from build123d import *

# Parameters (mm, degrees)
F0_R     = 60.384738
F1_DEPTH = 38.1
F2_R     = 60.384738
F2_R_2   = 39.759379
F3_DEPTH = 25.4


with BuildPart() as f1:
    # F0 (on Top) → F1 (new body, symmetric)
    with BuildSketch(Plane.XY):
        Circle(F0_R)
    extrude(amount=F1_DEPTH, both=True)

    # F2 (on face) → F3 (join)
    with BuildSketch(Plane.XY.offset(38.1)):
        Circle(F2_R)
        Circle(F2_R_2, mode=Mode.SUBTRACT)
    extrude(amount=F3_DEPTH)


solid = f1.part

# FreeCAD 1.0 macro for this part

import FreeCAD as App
import Part
import Sketcher

V = App.Vector
Q = App.Units.Quantity

doc = App.newDocument("Part")
body = doc.addObject("PartDesign::Body", "Body")

sketch1 = doc.addObject("Sketcher::SketchObject", "Sketch")
body.addObject(sketch1)
sketch1.AttachmentSupport = (doc.XY_Plane, [""])
sketch1.MapMode = "FlatFace"
sketch1.addGeometry(Part.Circle(V(0, 0, 0), V(0, 0, 1), 60.384738), False)
sketch1.addConstraint(Sketcher.Constraint("Coincident", 0, 3, -1, 1))
sketch1.addConstraint(Sketcher.Constraint("Diameter", 0, Q("120.769476 mm")))
pad1 = doc.addObject("PartDesign::Pad", "Pad")
body.addObject(pad1)
pad1.Profile = sketch1
pad1.Length = Q("3 in")
pad1.Midplane = True

sketch2 = doc.addObject("Sketcher::SketchObject", "Sketch001")
body.addObject(sketch2)
sketch2.AttachmentSupport = (doc.XY_Plane, [""])
sketch2.MapMode = "FlatFace"
sketch2.AttachmentOffset = App.Placement(V(0, 0, 1.5 * 25.4), App.Rotation())
sketch2.addGeometry(Part.Circle(V(0, 0, 0), V(0, 0, 1), 60.384738), False)
sketch2.addGeometry(Part.Circle(V(0, 0, 0), V(0, 0, 1), 39.759379), False)
sketch2.addConstraint(Sketcher.Constraint("Coincident", 0, 3, -1, 1))
sketch2.addConstraint(Sketcher.Constraint("Coincident", 1, 3, -1, 1))
sketch2.addConstraint(Sketcher.Constraint("Diameter", 1, Q("79.518758 mm")))
sketch2.addConstraint(Sketcher.Constraint("Diameter", 0, Q("120.769476 mm")))
pad2 = doc.addObject("PartDesign::Pad", "Pad001")
body.addObject(pad2)
pad2.Profile = sketch2
pad2.Length = Q("1 in")

doc.recompute()
